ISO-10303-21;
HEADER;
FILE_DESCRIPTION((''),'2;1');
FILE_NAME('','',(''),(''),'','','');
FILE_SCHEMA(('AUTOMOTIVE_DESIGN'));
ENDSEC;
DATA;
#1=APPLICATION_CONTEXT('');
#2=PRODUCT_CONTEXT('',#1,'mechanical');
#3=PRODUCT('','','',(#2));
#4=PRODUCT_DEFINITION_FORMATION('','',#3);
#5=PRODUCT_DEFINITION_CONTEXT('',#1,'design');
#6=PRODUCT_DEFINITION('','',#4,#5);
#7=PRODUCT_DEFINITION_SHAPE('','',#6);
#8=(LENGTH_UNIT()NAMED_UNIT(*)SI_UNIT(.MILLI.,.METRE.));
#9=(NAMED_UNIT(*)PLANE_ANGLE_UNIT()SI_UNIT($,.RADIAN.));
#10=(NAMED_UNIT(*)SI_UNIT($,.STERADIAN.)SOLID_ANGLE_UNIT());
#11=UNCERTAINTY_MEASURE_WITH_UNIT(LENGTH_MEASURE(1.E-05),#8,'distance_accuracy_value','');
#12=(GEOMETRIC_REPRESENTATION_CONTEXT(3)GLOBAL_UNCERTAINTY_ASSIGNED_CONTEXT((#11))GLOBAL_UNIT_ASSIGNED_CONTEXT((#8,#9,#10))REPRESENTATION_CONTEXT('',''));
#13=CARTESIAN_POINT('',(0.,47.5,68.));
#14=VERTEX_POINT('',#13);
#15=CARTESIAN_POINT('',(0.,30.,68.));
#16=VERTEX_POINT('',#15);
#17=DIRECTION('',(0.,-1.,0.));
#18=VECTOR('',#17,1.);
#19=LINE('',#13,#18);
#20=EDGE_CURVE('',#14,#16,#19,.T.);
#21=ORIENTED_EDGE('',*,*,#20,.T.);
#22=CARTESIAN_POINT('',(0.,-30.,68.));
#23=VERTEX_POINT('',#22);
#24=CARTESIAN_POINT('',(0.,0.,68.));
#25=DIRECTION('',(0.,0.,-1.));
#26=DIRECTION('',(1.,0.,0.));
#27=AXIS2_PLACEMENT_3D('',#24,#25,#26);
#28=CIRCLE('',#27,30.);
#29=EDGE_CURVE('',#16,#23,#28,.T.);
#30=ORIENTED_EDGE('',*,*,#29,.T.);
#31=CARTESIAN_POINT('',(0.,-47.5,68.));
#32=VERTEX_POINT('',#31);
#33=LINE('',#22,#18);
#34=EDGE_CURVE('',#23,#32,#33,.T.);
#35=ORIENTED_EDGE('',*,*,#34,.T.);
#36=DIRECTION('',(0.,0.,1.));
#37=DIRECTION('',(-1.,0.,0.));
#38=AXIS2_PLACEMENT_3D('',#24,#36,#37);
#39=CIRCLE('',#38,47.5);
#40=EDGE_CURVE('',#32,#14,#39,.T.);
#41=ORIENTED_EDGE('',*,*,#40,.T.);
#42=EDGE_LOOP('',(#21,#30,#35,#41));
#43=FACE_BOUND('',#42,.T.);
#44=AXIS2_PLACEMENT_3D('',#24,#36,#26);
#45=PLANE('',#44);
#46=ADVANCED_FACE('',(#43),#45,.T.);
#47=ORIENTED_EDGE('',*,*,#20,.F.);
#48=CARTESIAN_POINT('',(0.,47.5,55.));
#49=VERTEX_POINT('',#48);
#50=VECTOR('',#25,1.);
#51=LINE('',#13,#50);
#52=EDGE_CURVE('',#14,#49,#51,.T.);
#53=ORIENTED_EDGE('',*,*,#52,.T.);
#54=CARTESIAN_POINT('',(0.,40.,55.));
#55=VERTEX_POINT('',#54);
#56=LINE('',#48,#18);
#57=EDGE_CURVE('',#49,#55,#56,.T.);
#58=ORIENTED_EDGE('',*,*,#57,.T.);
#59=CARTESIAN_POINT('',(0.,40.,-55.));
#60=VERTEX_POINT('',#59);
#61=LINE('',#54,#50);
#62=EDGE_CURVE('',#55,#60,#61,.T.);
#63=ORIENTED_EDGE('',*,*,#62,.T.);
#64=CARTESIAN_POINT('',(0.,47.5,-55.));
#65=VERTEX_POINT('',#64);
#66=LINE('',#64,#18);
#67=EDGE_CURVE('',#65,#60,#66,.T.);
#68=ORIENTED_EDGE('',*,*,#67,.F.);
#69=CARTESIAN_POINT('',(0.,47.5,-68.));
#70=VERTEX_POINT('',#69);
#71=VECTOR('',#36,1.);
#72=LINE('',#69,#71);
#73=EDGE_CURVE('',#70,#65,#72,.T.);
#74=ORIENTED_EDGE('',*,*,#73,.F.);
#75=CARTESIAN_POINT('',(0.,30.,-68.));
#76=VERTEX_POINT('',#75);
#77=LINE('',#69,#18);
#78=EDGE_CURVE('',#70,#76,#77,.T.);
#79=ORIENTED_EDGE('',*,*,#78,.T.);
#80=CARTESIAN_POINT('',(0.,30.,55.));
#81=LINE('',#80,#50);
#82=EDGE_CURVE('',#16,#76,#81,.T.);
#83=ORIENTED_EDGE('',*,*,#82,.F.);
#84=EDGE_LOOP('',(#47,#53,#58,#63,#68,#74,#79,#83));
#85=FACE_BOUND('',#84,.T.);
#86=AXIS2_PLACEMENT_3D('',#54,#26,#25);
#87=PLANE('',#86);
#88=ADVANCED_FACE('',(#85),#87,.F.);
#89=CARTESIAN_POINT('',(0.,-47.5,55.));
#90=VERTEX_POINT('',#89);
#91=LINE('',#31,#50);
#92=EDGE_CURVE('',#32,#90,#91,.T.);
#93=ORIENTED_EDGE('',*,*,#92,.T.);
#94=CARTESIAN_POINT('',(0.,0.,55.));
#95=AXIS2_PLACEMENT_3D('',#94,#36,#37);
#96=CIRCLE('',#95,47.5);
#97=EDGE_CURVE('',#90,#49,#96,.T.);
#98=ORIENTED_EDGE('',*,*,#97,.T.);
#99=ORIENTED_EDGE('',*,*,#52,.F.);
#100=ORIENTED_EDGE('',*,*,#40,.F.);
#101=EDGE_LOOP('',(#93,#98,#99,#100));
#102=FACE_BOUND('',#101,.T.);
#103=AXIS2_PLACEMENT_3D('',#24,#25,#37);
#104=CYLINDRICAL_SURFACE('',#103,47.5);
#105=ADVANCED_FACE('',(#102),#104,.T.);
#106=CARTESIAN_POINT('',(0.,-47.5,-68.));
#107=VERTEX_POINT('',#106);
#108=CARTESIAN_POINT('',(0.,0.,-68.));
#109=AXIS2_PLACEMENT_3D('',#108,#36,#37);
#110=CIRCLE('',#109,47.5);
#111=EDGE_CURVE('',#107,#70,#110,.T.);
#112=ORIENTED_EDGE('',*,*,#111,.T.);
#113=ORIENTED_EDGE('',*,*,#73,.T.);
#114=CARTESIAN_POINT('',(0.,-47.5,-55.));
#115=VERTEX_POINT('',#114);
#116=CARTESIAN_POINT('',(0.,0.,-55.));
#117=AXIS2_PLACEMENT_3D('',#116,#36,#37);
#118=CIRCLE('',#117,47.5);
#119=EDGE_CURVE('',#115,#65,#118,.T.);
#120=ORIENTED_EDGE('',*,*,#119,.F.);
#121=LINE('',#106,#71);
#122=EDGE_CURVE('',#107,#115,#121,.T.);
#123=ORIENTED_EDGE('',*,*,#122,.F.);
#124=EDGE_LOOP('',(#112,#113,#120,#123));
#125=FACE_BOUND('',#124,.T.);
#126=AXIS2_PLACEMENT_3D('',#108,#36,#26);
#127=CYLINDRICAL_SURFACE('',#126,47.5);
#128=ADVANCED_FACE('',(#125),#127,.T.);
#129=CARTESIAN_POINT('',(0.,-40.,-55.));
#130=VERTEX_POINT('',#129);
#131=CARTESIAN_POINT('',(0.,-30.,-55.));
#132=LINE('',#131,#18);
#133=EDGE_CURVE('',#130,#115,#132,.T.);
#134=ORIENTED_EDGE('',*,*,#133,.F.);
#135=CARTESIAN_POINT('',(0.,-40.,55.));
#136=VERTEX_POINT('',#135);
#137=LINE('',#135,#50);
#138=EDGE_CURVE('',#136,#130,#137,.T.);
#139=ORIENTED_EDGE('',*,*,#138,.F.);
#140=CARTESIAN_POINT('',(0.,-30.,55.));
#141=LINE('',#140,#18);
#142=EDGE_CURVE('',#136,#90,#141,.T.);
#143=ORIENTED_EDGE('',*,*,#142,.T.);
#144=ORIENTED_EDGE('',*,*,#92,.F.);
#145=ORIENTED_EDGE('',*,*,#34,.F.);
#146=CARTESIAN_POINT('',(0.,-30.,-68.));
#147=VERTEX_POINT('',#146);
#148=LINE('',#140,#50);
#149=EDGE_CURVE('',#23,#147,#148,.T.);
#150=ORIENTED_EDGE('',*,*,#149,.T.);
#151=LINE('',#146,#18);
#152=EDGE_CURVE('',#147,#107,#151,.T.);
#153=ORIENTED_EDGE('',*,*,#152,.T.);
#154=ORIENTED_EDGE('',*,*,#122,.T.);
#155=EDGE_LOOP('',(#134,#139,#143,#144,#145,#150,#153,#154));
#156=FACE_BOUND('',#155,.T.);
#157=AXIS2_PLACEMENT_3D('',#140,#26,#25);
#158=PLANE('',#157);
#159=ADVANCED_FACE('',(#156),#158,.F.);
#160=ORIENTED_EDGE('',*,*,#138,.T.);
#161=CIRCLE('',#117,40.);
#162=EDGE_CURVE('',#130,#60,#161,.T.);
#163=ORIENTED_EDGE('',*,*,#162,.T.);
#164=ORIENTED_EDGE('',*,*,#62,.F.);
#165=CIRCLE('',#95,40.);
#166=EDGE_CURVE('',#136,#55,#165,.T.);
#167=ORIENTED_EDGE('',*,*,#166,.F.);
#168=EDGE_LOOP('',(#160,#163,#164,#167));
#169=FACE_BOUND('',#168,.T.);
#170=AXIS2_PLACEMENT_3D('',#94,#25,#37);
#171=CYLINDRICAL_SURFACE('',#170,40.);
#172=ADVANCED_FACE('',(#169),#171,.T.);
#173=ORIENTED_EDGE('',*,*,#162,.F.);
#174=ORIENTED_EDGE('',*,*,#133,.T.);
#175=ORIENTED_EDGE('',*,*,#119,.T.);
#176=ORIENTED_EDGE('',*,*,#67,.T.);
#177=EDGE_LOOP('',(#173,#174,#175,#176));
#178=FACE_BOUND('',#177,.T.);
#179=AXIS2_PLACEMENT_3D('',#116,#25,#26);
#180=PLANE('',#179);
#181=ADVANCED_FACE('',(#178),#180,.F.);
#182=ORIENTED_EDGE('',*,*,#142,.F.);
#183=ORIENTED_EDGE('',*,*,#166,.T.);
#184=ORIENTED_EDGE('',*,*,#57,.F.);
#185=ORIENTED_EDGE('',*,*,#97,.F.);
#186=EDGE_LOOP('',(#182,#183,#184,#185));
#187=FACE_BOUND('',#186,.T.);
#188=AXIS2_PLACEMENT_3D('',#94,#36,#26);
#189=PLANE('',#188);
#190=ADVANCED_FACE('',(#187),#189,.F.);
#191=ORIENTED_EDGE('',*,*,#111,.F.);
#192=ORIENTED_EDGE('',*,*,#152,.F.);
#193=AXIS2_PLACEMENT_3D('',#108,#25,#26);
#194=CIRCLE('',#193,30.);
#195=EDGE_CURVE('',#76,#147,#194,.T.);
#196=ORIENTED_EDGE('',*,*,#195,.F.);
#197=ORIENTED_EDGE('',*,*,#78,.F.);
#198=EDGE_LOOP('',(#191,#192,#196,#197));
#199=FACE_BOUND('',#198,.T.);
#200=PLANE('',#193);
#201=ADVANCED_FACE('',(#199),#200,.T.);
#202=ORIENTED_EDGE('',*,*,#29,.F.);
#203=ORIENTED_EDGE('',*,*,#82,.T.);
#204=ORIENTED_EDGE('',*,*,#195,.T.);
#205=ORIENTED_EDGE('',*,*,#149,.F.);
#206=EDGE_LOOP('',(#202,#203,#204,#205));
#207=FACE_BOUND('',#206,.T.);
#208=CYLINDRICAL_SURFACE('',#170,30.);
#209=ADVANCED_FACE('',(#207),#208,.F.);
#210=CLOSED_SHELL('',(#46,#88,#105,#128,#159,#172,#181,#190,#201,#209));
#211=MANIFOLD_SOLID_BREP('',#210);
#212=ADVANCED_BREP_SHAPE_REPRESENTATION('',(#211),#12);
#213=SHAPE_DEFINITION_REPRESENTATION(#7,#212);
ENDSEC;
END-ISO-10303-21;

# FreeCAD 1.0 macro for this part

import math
import FreeCAD as App
import Part
import Sketcher
Q = App.Units.Quantity

doc = App.newDocument("Part")
params = doc.addObject("Spreadsheet::Sheet", "Params")
for row, (alias, value) in enumerate([
    ("sketch1_radius", "30 mm"),
    ("sketch1_radius2", "40 mm"),
    ("pad1_length", "110 mm"),
    ("sketch2_radius", "30 mm"),
    ("sketch2_radius2", "47.5 mm"),
    ("pad2_length", "13 mm"),
], start=1):
    params.set(f"A{row}", alias)
    params.set(f"B{row}", "=" + value)
    params.setAlias(f"B{row}", alias)

body = doc.addObject("PartDesign::Body", "Body")

sketch1 = body.newObject("Sketcher::SketchObject", "Sketch")
sketch1.AttachmentSupport = (doc.getObject("XY_Plane"), [""])
sketch1.MapMode = "FlatFace"
sketch1.addGeometry([
    Part.LineSegment(App.Vector(0, 40, 0), App.Vector(0, 30, 0)),
    Part.ArcOfCircle(Part.Circle(App.Vector(0, 0, 0), App.Vector(0, 0, 1), 30), math.radians(-90), math.radians(90)),
    Part.LineSegment(App.Vector(0, -30, 0), App.Vector(0, -40, 0)),
    Part.ArcOfCircle(Part.Circle(App.Vector(0, 0, 0), App.Vector(0, 0, 1), 40), math.radians(-90), math.radians(90)),
], False)
sketch1.addConstraint([
    Sketcher.Constraint("Coincident", 0, 2, 1, 2),
    Sketcher.Constraint("Coincident", 1, 1, 2, 1),
    Sketcher.Constraint("Coincident", 2, 2, 3, 1),
    Sketcher.Constraint("Coincident", 3, 2, 0, 1),
    Sketcher.Constraint("Vertical", 0),
    Sketcher.Constraint("Vertical", 2),
    Sketcher.Constraint("Coincident", 1, 3, -1, 1),
    Sketcher.Constraint("Coincident", 3, 3, -1, 1),
    Sketcher.Constraint("PointOnObject", 0, 2, -2),
    Sketcher.Constraint("PointOnObject", 1, 1, -2),
    Sketcher.Constraint("Radius", 1, Q("30 mm")),
    Sketcher.Constraint("Radius", 3, Q("40 mm")),
])
sketch1.setExpression("Constraints[10]", "Params.sketch1_radius")
sketch1.setExpression("Constraints[11]", "Params.sketch1_radius2")
pad1 = body.newObject("PartDesign::Pad", "Pad")
pad1.Profile = sketch1
pad1.setExpression("Length", "Params.pad1_length")
pad1.Midplane = True

sketch2 = body.newObject("Sketcher::SketchObject", "Sketch001")
sketch2.AttachmentSupport = (doc.getObject("XY_Plane"), [""])
sketch2.MapMode = "FlatFace"
sketch2.AttachmentOffset = App.Placement(App.Vector(0, 0, 68), App.Rotation())
sketch2.addGeometry([
    Part.LineSegment(App.Vector(0, 48, 0), App.Vector(0, 30, 0)),
    Part.ArcOfCircle(Part.Circle(App.Vector(0, 0, 0), App.Vector(0, 0, 1), 30), math.radians(-90), math.radians(90)),
    Part.LineSegment(App.Vector(0, -30, 0), App.Vector(0, -48, 0)),
    Part.ArcOfCircle(Part.Circle(App.Vector(0, 0, 0), App.Vector(0, 0, 1), 48), math.radians(-90), math.radians(90)),
], False)
sketch2.addConstraint([
    Sketcher.Constraint("Coincident", 0, 2, 1, 2),
    Sketcher.Constraint("Coincident", 1, 1, 2, 1),
    Sketcher.Constraint("Coincident", 2, 2, 3, 1),
    Sketcher.Constraint("Coincident", 3, 2, 0, 1),
    Sketcher.Constraint("Vertical", 0),
    Sketcher.Constraint("Vertical", 2),
    Sketcher.Constraint("Coincident", 1, 3, -1, 1),
    Sketcher.Constraint("Coincident", 3, 3, -1, 1),
    Sketcher.Constraint("PointOnObject", 0, 2, -2),
    Sketcher.Constraint("PointOnObject", 1, 1, -2),
    Sketcher.Constraint("Radius", 1, Q("30 mm")),
    Sketcher.Constraint("Radius", 3, Q("47.5 mm")),
])
sketch2.setExpression("Constraints[10]", "Params.sketch2_radius")
sketch2.setExpression("Constraints[11]", "Params.sketch2_radius2")
pad2 = body.newObject("PartDesign::Pad", "Pad001")
pad2.Profile = sketch2
pad2.setExpression("Length", "Params.pad2_length")
pad2.Reversed = True
doc.recompute()

mirrored = body.newObject("PartDesign::Mirrored", "Mirrored")
mirrored.Originals = [pad2]
mirrored.MirrorPlane = (doc.getObject("XY_Plane"), [""])
body.Tip = mirrored

doc.recompute()
